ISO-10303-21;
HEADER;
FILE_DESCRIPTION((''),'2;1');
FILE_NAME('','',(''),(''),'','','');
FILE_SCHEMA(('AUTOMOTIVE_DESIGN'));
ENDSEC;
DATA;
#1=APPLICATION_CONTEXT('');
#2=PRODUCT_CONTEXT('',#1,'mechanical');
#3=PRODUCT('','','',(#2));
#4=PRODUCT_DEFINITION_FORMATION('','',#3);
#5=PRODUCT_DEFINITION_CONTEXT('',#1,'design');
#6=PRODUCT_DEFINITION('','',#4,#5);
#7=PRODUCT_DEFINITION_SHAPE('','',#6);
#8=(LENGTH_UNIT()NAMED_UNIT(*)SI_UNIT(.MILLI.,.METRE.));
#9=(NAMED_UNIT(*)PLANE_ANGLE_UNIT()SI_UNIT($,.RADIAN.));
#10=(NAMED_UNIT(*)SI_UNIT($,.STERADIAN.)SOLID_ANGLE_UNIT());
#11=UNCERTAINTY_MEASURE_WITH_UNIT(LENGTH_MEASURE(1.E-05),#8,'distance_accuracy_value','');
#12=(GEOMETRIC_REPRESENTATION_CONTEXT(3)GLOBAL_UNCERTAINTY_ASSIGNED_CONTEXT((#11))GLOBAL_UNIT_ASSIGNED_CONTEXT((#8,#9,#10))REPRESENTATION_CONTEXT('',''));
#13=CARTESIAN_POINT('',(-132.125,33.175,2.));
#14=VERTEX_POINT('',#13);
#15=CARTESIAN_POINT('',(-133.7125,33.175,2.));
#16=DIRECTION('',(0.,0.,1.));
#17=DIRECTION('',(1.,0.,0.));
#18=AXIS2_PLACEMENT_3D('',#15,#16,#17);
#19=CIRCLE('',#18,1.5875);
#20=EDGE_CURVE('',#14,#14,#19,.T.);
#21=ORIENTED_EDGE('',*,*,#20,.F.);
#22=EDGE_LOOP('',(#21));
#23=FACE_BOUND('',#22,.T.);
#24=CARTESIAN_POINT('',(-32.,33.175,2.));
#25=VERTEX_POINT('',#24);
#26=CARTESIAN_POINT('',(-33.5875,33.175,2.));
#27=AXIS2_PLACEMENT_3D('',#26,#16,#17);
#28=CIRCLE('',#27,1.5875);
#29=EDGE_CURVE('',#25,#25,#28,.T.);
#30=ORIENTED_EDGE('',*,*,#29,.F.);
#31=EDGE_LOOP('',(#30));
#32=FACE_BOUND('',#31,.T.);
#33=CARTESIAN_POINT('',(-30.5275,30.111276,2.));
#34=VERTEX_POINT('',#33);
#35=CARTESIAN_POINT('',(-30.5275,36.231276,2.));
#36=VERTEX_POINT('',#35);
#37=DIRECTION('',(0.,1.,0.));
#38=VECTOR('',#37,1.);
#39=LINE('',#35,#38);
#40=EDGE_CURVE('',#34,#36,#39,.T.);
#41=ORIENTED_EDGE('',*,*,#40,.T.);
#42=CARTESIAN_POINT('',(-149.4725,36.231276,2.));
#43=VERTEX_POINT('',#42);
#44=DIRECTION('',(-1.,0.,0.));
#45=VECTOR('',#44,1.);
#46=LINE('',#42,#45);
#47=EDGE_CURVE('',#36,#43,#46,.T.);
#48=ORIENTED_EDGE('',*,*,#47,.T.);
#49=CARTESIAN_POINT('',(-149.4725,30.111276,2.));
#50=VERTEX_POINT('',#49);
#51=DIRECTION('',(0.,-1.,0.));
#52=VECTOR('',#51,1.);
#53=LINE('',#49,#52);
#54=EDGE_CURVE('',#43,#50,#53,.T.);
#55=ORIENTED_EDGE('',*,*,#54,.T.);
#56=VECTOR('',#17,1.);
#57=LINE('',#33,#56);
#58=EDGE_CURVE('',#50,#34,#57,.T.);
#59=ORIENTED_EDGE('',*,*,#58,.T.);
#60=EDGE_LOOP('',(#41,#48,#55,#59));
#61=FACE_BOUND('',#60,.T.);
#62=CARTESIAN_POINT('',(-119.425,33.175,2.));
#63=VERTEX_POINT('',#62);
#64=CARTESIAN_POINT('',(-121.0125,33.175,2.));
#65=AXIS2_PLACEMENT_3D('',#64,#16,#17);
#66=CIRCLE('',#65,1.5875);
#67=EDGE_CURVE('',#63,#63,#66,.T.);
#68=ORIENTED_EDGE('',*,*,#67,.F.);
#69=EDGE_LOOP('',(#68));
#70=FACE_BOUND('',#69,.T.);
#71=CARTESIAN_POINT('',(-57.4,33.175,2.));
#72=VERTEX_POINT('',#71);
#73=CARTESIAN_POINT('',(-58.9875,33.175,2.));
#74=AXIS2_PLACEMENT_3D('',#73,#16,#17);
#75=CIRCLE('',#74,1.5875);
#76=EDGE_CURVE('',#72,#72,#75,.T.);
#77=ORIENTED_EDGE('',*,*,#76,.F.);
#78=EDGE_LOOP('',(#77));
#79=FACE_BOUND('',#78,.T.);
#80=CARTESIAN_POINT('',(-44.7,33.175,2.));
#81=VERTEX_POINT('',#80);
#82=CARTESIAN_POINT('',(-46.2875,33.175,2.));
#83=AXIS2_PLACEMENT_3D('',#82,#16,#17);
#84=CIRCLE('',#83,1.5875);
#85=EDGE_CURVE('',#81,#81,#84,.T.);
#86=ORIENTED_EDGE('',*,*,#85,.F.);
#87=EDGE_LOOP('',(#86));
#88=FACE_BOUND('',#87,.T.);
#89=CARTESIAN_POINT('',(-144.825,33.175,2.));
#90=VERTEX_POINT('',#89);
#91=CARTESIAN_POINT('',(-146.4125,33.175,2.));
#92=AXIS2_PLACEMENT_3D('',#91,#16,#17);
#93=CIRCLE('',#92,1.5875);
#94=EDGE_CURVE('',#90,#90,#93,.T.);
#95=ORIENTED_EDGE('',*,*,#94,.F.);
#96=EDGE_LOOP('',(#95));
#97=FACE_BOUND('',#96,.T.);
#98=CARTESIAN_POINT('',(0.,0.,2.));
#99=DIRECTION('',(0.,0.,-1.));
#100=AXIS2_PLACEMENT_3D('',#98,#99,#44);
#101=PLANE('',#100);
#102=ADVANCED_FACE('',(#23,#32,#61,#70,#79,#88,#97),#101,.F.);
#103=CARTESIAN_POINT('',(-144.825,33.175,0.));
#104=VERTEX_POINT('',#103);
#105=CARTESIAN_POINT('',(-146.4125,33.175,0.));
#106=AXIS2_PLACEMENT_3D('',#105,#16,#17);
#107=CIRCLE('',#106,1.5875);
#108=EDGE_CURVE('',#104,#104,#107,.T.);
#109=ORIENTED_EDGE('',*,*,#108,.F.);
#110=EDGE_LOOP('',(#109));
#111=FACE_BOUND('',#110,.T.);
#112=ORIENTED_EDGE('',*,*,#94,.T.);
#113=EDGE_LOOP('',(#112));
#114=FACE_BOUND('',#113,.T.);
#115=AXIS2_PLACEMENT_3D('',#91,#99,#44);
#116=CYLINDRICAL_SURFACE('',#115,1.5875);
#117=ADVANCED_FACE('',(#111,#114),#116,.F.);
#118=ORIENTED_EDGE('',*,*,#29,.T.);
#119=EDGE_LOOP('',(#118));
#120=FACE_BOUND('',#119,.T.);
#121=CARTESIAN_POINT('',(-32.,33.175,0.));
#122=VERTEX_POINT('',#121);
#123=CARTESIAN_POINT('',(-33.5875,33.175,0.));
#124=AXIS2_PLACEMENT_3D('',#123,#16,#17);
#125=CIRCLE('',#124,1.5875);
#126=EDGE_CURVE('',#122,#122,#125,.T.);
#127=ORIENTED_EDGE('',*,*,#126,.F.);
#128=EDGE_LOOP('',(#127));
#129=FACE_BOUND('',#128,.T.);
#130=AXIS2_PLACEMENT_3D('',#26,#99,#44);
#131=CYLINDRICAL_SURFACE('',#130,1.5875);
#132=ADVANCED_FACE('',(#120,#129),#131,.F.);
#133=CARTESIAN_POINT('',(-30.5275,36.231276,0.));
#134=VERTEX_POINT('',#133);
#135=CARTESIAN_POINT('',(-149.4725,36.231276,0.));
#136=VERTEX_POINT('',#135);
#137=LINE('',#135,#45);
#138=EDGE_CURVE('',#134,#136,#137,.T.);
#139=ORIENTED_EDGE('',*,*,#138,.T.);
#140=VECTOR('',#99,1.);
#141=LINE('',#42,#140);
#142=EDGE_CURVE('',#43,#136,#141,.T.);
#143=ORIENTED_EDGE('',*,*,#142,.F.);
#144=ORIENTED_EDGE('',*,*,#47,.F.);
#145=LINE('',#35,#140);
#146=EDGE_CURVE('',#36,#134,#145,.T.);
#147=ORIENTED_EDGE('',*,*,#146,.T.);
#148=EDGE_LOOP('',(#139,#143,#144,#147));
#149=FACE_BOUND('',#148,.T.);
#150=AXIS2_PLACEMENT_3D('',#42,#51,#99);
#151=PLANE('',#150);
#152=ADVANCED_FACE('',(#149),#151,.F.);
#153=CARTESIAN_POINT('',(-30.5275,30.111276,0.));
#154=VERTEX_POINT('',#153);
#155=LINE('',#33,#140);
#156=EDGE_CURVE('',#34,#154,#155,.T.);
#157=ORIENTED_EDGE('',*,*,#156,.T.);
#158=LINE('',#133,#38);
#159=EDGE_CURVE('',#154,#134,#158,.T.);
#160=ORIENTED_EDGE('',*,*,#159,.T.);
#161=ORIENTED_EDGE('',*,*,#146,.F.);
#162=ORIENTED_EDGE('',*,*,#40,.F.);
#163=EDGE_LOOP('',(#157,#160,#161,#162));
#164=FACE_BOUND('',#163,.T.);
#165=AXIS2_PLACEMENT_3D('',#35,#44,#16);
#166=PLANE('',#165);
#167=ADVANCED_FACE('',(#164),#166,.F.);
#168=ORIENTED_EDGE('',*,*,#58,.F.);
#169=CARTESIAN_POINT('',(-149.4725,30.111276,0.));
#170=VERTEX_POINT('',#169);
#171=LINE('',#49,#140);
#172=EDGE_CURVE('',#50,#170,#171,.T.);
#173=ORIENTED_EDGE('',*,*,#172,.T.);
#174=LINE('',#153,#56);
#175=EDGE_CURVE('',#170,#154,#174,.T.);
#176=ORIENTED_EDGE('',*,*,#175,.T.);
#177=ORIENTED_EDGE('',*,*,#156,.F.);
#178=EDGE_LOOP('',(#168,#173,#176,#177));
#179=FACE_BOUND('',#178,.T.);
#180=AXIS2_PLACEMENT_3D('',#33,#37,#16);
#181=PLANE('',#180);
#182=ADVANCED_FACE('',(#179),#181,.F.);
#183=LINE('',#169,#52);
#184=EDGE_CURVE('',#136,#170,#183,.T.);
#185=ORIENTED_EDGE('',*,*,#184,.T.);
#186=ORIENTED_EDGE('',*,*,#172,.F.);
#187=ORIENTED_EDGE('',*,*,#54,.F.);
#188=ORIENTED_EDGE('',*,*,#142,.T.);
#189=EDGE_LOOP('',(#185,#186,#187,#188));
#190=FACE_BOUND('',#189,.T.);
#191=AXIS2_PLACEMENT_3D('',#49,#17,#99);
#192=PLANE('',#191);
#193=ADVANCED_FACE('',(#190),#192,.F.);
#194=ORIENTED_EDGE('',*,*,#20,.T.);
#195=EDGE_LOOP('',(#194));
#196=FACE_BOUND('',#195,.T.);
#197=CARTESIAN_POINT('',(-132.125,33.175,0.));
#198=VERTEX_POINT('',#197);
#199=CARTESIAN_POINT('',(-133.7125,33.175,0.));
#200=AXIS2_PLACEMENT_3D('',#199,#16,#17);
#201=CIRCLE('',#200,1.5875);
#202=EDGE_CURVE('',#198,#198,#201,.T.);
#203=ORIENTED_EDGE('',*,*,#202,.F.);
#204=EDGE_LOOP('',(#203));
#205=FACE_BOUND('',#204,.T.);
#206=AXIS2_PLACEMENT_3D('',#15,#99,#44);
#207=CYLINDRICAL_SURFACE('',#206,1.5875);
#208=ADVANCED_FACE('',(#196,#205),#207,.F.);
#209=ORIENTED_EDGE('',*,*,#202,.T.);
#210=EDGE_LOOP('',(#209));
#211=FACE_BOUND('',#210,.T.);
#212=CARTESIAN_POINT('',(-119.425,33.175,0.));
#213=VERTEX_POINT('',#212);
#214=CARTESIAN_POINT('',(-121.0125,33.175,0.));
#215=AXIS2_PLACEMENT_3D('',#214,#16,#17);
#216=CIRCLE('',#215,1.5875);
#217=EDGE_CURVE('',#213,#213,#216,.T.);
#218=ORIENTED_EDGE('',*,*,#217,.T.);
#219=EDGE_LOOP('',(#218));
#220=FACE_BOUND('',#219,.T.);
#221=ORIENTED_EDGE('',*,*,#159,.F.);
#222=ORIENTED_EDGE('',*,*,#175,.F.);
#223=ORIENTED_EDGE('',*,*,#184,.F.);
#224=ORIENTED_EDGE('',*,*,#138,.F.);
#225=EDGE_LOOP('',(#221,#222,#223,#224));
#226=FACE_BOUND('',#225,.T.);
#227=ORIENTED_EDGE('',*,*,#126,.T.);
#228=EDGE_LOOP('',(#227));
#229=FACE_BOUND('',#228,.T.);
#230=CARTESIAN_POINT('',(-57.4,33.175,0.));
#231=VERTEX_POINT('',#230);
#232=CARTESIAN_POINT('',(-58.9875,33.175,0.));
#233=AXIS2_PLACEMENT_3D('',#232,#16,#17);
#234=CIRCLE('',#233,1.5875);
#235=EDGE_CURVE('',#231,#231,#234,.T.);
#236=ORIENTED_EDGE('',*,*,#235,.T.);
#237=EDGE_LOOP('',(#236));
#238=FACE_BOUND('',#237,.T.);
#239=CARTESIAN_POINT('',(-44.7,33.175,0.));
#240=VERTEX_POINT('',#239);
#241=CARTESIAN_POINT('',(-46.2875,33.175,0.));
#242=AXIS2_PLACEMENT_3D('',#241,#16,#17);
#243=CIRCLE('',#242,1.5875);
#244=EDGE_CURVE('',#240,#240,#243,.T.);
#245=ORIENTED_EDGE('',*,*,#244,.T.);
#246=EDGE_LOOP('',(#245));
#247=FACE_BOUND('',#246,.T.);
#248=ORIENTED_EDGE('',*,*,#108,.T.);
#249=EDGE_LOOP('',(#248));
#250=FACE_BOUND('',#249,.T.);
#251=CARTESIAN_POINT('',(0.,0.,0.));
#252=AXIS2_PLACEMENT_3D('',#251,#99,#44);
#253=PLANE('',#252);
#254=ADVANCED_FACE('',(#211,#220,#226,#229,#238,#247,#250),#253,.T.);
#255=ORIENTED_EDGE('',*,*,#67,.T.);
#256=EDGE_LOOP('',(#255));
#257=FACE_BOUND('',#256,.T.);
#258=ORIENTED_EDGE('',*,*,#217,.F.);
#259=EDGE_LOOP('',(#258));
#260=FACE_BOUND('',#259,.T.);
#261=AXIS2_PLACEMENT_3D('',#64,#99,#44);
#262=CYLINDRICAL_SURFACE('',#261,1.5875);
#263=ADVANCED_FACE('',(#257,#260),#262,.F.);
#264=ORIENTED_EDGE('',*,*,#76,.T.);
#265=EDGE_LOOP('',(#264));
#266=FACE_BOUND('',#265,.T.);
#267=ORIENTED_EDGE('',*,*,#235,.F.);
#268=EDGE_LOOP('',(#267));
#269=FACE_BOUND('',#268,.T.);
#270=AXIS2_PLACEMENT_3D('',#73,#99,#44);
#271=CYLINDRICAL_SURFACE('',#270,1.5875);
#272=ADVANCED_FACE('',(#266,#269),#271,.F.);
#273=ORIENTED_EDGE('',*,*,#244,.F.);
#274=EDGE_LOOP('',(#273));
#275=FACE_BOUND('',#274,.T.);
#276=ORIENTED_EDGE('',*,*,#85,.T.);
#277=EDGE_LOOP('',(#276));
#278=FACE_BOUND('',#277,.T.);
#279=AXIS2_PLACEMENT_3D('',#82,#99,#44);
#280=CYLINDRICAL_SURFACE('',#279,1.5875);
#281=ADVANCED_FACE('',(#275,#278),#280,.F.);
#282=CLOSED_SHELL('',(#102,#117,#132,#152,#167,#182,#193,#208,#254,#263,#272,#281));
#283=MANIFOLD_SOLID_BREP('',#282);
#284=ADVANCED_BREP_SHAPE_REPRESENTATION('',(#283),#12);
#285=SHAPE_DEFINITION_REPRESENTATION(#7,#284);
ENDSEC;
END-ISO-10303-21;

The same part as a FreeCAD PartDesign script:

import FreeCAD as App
import Part
import Sketcher

doc = App.newDocument("Part")
body = doc.addObject("PartDesign::Body", "Body")

# Sketch on XY plane
sketch1 = body.newObject("Sketcher::SketchObject", "Sketch")
sketch1.AttachmentSupport = (doc.getObject("XY_Plane"), [""])
sketch1.MapMode = "FlatFace"
sketch1.addGeometry(Part.LineSegment(App.Vector(-149.5, 36.2, 0), App.Vector(-149.5, 30.1, 0)), False)
sketch1.addGeometry(Part.LineSegment(App.Vector(-149.5, 30.1, 0), App.Vector(-30.5, 30.1, 0)), False)
sketch1.addGeometry(Part.LineSegment(App.Vector(-30.5, 30.1, 0), App.Vector(-30.5, 36.2, 0)), False)
sketch1.addGeometry(Part.LineSegment(App.Vector(-30.5, 36.2, 0), App.Vector(-149.5, 36.2, 0)), False)
sketch1.addGeometry(Part.Circle(App.Vector(-146.4, 33.2, 0), App.Vector(0, 0, 1), 1.6), False)
sketch1.addGeometry(Part.Circle(App.Vector(-133.7, 33.2, 0), App.Vector(0, 0, 1), 1.6), False)
sketch1.addGeometry(Part.Circle(App.Vector(-121, 33.2, 0), App.Vector(0, 0, 1), 1.6), False)
sketch1.addGeometry(Part.Circle(App.Vector(-59, 33.2, 0), App.Vector(0, 0, 1), 1.6), False)
sketch1.addGeometry(Part.Circle(App.Vector(-46.3, 33.2, 0), App.Vector(0, 0, 1), 1.6), False)
sketch1.addGeometry(Part.Circle(App.Vector(-33.6, 33.2, 0), App.Vector(0, 0, 1), 1.6), False)
sketch1.addConstraint(Sketcher.Constraint("Coincident", 0, 2, 1, 1))
sketch1.addConstraint(Sketcher.Constraint("Coincident", 1, 2, 2, 1))
sketch1.addConstraint(Sketcher.Constraint("Coincident", 2, 2, 3, 1))
sketch1.addConstraint(Sketcher.Constraint("Coincident", 3, 2, 0, 1))
sketch1.addConstraint(Sketcher.Constraint("Vertical", 0))
sketch1.addConstraint(Sketcher.Constraint("Horizontal", 1))
sketch1.addConstraint(Sketcher.Constraint("Vertical", 2))
sketch1.addConstraint(Sketcher.Constraint("Horizontal", 3))
sketch1.addConstraint(Sketcher.Constraint("Equal", 4, 5))
sketch1.addConstraint(Sketcher.Constraint("Equal", 5, 6))
sketch1.addConstraint(Sketcher.Constraint("Equal", 6, 7))
sketch1.addConstraint(Sketcher.Constraint("Equal", 7, 8))
sketch1.addConstraint(Sketcher.Constraint("Equal", 8, 9))
sketch1.addConstraint(Sketcher.Constraint("Horizontal", 4, 3, 5, 3))
sketch1.addConstraint(Sketcher.Constraint("Horizontal", 5, 3, 6, 3))
sketch1.addConstraint(Sketcher.Constraint("Horizontal", 6, 3, 7, 3))
sketch1.addConstraint(Sketcher.Constraint("Horizontal", 7, 3, 8, 3))
sketch1.addConstraint(Sketcher.Constraint("Horizontal", 8, 3, 9, 3))
sketch1.addConstraint(Sketcher.Constraint("Diameter", 4, 3.175))
sketch1.addConstraint(Sketcher.Constraint("DistanceY", 0, 2, 0, 1, 6.12))
sketch1.addConstraint(Sketcher.Constraint("DistanceX", 4, 3, 5, 3, 12.7))
sketch1.addConstraint(Sketcher.Constraint("DistanceX", 5, 3, 6, 3, 12.7))
sketch1.addConstraint(Sketcher.Constraint("DistanceX", 7, 3, 8, 3, 12.7))
sketch1.addConstraint(Sketcher.Constraint("DistanceX", 8, 3, 9, 3, 12.7))
sketch1.addConstraint(Sketcher.Constraint("DistanceX", 1, 1, 1, 2, 118.945))
sketch1.addConstraint(Sketcher.Constraint("DistanceX", 0, 2, 4, 3, 3.06))
sketch1.addConstraint(Sketcher.Constraint("DistanceX", 9, 3, 1, 2, 3.06))
sketch1.addConstraint(Sketcher.Constraint("DistanceY", -1, 1, 4, 3, 33.175))
sketch1.addConstraint(Sketcher.Constraint("DistanceX", 4, 3, -1, 1, 146.4125))
sketch1.addConstraint(Sketcher.Constraint("DistanceY", -1, 1, 0, 2, 30.111276))
pad1 = body.newObject("PartDesign::Pad", "Pad")
pad1.Profile = sketch1
pad1.Length = 2

doc.recompute()
